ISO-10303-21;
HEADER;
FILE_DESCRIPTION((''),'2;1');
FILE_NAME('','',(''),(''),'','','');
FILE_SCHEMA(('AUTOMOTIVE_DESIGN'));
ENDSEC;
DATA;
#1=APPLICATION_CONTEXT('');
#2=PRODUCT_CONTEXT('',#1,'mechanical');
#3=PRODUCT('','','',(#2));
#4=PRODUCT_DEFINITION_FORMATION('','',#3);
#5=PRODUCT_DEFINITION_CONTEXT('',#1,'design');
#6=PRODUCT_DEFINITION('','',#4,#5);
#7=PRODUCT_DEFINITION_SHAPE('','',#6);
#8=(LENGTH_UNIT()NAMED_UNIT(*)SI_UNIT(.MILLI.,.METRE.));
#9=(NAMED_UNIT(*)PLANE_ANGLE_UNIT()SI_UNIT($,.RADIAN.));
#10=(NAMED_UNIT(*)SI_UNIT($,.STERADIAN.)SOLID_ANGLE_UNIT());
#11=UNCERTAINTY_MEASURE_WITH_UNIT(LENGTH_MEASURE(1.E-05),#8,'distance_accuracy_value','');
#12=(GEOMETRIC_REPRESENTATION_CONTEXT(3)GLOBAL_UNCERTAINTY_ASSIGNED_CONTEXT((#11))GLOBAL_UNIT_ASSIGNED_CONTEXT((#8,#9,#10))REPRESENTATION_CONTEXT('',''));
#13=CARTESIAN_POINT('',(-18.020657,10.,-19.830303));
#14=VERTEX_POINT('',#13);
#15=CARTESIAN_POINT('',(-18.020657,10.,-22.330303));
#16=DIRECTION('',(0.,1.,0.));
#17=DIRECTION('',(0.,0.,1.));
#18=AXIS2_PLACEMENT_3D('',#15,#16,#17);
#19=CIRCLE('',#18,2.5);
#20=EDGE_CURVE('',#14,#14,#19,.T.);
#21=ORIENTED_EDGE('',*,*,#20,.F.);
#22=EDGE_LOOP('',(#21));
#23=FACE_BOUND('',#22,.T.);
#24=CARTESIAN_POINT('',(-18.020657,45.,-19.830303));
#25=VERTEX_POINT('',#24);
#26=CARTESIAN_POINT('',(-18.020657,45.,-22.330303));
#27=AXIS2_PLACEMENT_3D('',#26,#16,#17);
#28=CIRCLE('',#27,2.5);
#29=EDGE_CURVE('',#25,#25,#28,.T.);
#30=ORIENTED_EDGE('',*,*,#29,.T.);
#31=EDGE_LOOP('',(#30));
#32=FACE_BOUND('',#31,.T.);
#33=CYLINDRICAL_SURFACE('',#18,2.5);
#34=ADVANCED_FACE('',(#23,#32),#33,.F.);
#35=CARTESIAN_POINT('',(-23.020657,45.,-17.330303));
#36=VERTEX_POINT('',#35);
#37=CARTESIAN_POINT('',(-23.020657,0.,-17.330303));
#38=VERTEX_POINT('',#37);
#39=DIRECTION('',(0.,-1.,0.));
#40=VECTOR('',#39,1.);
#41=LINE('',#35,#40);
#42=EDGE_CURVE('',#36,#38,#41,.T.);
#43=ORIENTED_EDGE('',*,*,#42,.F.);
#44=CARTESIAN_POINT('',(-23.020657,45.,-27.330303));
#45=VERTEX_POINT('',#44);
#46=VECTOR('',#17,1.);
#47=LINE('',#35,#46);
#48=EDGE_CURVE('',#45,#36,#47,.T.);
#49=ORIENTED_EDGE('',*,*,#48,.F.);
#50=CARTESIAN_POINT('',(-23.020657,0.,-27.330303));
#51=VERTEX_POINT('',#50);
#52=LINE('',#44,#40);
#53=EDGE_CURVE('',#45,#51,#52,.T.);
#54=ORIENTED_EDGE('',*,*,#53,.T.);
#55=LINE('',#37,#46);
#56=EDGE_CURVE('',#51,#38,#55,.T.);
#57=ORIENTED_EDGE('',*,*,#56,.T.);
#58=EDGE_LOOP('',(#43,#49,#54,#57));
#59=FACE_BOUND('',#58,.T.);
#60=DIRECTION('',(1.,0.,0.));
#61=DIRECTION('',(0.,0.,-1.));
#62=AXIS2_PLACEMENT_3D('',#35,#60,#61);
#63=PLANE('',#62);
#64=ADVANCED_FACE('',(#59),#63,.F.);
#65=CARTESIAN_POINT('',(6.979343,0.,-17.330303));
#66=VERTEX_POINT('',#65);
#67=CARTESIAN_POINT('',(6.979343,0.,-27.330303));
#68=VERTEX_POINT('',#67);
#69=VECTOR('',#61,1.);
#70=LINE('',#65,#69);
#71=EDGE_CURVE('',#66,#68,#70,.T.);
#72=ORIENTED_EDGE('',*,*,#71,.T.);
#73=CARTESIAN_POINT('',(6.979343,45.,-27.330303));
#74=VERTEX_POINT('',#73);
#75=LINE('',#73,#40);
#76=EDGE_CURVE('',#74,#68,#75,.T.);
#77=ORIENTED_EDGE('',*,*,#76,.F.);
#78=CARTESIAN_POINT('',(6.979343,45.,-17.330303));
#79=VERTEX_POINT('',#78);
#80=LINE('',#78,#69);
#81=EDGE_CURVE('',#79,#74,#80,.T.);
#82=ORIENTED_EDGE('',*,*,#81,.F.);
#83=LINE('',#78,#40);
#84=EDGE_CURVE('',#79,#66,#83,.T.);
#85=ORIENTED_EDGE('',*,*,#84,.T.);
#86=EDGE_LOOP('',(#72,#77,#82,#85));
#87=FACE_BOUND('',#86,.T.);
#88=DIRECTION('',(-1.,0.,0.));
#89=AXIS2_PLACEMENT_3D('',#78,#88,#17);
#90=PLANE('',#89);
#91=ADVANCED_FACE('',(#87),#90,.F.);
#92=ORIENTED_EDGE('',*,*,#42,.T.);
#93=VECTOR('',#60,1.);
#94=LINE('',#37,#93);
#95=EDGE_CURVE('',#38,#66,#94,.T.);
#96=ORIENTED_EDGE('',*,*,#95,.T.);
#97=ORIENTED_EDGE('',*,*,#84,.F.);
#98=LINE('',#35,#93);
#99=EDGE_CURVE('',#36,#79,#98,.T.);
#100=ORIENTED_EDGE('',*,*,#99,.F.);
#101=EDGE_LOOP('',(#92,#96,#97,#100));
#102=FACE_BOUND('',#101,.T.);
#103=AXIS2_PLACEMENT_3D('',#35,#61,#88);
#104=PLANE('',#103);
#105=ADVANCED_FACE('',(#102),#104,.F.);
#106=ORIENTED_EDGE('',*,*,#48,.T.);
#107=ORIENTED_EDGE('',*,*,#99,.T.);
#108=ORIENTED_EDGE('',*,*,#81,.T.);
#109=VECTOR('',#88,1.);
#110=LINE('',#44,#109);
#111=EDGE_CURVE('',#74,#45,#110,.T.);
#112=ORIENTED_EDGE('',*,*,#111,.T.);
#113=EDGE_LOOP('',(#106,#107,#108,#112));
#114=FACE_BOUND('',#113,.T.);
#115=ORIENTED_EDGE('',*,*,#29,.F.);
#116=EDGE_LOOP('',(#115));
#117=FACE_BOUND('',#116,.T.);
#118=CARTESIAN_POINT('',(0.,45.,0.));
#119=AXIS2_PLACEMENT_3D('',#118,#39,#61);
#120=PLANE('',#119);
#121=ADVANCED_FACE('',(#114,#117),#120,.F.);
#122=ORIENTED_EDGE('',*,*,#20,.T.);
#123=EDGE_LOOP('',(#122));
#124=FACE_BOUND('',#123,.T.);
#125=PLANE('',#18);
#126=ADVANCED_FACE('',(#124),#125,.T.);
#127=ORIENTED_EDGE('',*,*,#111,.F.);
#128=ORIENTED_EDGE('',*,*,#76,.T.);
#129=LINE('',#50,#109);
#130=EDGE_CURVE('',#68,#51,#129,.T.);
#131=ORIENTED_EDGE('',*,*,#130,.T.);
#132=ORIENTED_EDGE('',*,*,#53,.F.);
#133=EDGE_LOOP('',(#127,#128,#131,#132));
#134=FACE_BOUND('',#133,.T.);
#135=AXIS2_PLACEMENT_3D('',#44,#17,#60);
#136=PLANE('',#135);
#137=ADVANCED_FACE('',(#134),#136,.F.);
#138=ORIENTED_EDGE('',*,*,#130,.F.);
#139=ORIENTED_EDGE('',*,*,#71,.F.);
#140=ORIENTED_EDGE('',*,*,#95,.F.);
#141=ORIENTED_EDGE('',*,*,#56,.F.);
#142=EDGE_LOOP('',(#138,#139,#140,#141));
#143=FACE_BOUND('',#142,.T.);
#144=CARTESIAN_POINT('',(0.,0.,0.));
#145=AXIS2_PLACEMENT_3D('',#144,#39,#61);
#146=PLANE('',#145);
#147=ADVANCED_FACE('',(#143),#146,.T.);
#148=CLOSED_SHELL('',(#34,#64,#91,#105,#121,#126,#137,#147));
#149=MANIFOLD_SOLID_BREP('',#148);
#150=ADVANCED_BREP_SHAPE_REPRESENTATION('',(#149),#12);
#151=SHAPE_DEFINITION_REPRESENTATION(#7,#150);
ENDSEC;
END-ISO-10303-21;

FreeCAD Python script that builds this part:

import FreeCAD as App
import Part
import Sketcher
from FreeCAD import Vector
Q = App.Units.Quantity

doc = App.newDocument("Part")
body = doc.addObject("PartDesign::Body", "Body")

# Sketch on XZ plane
sketch1 = body.newObject("Sketcher::SketchObject", "Sketch")
sketch1.AttachmentSupport = (doc.getObject("XZ_Plane"), [""])
sketch1.MapMode = "FlatFace"
sketch1.addGeometry([
    Part.LineSegment(Vector(-23, -27, 0), Vector(-23, -17, 0)),
    Part.LineSegment(Vector(-23, -17, 0), Vector(7, -17, 0)),
    Part.LineSegment(Vector(7, -17, 0), Vector(7, -27, 0)),
    Part.LineSegment(Vector(7, -27, 0), Vector(-23, -27, 0)),
], False)
sketch1.addConstraint([
    Sketcher.Constraint("Coincident", 0, 2, 1, 1),
    Sketcher.Constraint("Coincident", 1, 2, 2, 1),
    Sketcher.Constraint("Coincident", 2, 2, 3, 1),
    Sketcher.Constraint("Coincident", 3, 2, 0, 1),
    Sketcher.Constraint("Vertical", 0),
    Sketcher.Constraint("Horizontal", 1),
    Sketcher.Constraint("Vertical", 2),
    Sketcher.Constraint("Horizontal", 3),
    Sketcher.Constraint("DistanceX", 1, 1, 1, 2, Q("30 mm")),
    Sketcher.Constraint("DistanceY", 0, 1, 0, 2, Q("10 mm")),
    Sketcher.Constraint("DistanceX", 0, 2, -1, 1, Q("23.020657 mm")),
    Sketcher.Constraint("DistanceY", 0, 2, -1, 1, Q("17.330303 mm")),
])
pad1 = body.newObject("PartDesign::Pad", "Pad")
pad1.Profile = sketch1
pad1.Length = 45
pad1.Reversed = True

# Sketch on XZ plane
sketch2 = body.newObject("Sketcher::SketchObject", "Sketch001")
sketch2.AttachmentSupport = (doc.getObject("XZ_Plane"), [""])
sketch2.MapMode = "FlatFace"
sketch2.AttachmentOffset = App.Placement(Vector(0, 0, -45), App.Rotation())
sketch2.addGeometry(Part.Circle(Vector(-18, -22.3, 0), Vector(0, 0, 1), 2.5), False)
sketch2.addConstraint([
    Sketcher.Constraint("Diameter", 0, Q("5 mm")),
    Sketcher.Constraint("DistanceX", 0, 3, -1, 1, Q("18.020657 mm")),
    Sketcher.Constraint("DistanceY", 0, 3, -1, 1, Q("22.330303 mm")),
])
pocket1 = body.newObject("PartDesign::Pocket", "Pocket")
pocket1.Profile = sketch2
pocket1.Length = 35
pocket1.Reversed = True

doc.recompute()
